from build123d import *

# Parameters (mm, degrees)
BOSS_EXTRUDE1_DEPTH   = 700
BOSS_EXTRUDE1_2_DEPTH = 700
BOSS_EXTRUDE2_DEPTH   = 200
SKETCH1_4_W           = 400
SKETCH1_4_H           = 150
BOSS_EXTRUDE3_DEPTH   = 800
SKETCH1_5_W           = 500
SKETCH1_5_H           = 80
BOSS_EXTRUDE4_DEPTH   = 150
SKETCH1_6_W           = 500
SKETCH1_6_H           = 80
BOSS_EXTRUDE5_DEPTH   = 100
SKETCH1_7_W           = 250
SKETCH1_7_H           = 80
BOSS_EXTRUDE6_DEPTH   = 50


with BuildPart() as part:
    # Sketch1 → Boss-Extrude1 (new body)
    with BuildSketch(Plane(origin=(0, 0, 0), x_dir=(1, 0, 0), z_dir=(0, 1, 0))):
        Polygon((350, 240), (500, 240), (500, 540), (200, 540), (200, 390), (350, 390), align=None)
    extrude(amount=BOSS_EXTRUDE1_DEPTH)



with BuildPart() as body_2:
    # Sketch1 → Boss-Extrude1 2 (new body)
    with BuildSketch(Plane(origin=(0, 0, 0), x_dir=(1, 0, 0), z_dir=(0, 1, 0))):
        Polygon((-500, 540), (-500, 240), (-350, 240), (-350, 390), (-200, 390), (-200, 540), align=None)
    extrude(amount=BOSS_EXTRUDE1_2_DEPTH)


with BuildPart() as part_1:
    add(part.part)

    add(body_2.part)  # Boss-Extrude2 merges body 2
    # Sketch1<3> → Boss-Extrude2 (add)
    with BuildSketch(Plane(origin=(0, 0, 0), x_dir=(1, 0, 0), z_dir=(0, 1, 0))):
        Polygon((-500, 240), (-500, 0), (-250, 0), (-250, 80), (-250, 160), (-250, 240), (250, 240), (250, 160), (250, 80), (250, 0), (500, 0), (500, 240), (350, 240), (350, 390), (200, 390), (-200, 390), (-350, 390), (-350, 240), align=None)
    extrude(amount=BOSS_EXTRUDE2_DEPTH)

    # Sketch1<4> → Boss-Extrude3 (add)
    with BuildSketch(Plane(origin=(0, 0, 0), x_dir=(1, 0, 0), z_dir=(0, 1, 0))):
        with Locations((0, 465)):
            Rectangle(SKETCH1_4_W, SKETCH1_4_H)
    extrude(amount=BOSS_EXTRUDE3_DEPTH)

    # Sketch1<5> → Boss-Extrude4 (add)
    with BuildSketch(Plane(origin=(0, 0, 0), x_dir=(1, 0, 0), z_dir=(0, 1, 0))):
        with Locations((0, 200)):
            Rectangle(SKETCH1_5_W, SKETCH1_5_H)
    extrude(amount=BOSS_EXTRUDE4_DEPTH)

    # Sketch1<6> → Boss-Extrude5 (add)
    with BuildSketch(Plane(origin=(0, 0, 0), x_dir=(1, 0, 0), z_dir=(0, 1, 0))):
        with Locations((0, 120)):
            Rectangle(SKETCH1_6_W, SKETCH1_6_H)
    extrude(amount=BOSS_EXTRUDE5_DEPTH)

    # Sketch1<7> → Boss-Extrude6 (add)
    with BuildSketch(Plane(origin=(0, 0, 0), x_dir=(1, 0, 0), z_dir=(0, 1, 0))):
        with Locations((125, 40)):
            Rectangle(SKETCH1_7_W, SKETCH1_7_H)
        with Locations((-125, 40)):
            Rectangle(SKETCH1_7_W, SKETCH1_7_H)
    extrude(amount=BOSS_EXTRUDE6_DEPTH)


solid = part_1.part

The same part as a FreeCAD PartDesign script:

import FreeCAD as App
import Part
import Sketcher
from FreeCAD import Vector

doc = App.newDocument("Part")
body = doc.addObject("PartDesign::Body", "Body")

# Sketch on XZ plane
sketch1 = body.newObject("Sketcher::SketchObject", "Sketch")
sketch1.AttachmentSupport = (doc.getObject("XZ_Plane"), [""])
sketch1.MapMode = "FlatFace"
sketch1.addGeometry([
    Part.LineSegment(Vector(350, -240, 0), Vector(500, -240, 0)),  # 0
    Part.LineSegment(Vector(500, -240, 0), Vector(500, -540, 0)),  # 1
    Part.LineSegment(Vector(500, -540, 0), Vector(200, -540, 0)),  # 2
    Part.LineSegment(Vector(200, -540, 0), Vector(200, -390, 0)),  # 3
    Part.LineSegment(Vector(200, -390, 0), Vector(350, -390, 0)),  # 4
    Part.LineSegment(Vector(350, -390, 0), Vector(350, -240, 0)),  # 5
], False)
sketch1.addConstraint([
    Sketcher.Constraint("Coincident", 0, 2, 1, 1),
    Sketcher.Constraint("Coincident", 1, 2, 2, 1),
    Sketcher.Constraint("Coincident", 2, 2, 3, 1),
    Sketcher.Constraint("Coincident", 3, 2, 4, 1),
    Sketcher.Constraint("Coincident", 4, 2, 5, 1),
    Sketcher.Constraint("Coincident", 5, 2, 0, 1),
    Sketcher.Constraint("Horizontal", 0),
    Sketcher.Constraint("Vertical", 1),
    Sketcher.Constraint("Horizontal", 2),
    Sketcher.Constraint("Vertical", 3),
    Sketcher.Constraint("Horizontal", 4),
    Sketcher.Constraint("Vertical", 5),
    Sketcher.Constraint("Equal", 0, 4),
    Sketcher.Constraint("Equal", 2, 1),
    Sketcher.Constraint("Equal", 4, 3),
    Sketcher.Constraint("DistanceX", 0, 1, 0, 2, 150.0),
    Sketcher.Constraint("DistanceX", -1, 1, 0, 2, 500.0),
    Sketcher.Constraint("DistanceY", 0, 2, -1, 1, 240.0),
])
pad1 = body.newObject("PartDesign::Pad", "Pad")
pad1.Profile = sketch1
pad1.Length = 700
pad1.Reversed = True
body2 = doc.addObject("PartDesign::Body", "Body001")

# Sketch on XZ plane
sketch2 = body2.newObject("Sketcher::SketchObject", "Sketch001")
sketch2.AttachmentSupport = (doc.getObject("XZ_Plane001"), [""])
sketch2.MapMode = "FlatFace"
sketch2.addGeometry([
    Part.LineSegment(Vector(-500, -540, 0), Vector(-500, -240, 0)),  # 0
    Part.LineSegment(Vector(-500, -240, 0), Vector(-350, -240, 0)),  # 1
    Part.LineSegment(Vector(-350, -240, 0), Vector(-350, -390, 0)),  # 2
    Part.LineSegment(Vector(-350, -390, 0), Vector(-200, -390, 0)),  # 3
    Part.LineSegment(Vector(-200, -390, 0), Vector(-200, -540, 0)),  # 4
    Part.LineSegment(Vector(-200, -540, 0), Vector(-500, -540, 0)),  # 5
], False)
sketch2.addConstraint([
    Sketcher.Constraint("Coincident", 0, 2, 1, 1),
    Sketcher.Constraint("Coincident", 1, 2, 2, 1),
    Sketcher.Constraint("Coincident", 2, 2, 3, 1),
    Sketcher.Constraint("Coincident", 3, 2, 4, 1),
    Sketcher.Constraint("Coincident", 4, 2, 5, 1),
    Sketcher.Constraint("Coincident", 5, 2, 0, 1),
    Sketcher.Constraint("Vertical", 0),
    Sketcher.Constraint("Horizontal", 1),
    Sketcher.Constraint("Vertical", 2),
    Sketcher.Constraint("Horizontal", 3),
    Sketcher.Constraint("Vertical", 4),
    Sketcher.Constraint("Horizontal", 5),
    Sketcher.Constraint("Equal", 1, 3),
    Sketcher.Constraint("Equal", 5, 0),
    Sketcher.Constraint("Equal", 3, 2),
    Sketcher.Constraint("DistanceX", 1, 1, 1, 2, 150.0),
    Sketcher.Constraint("DistanceX", 0, 2, -1, 1, 500.0),
    Sketcher.Constraint("DistanceY", 0, 2, -1, 1, 240.0),
])
pad2 = body2.newObject("PartDesign::Pad", "Pad001")
pad2.Profile = sketch2
pad2.Length = 700
pad2.Reversed = True
body.AllowCompound = True
doc.recompute()

boolean = body.newObject("PartDesign::Boolean", "Boolean")
boolean.Type = "Fuse"
boolean.addObjects([body2])

# Sketch on XZ plane
sketch3 = body.newObject("Sketcher::SketchObject", "Sketch002")
sketch3.AttachmentSupport = (doc.getObject("XZ_Plane"), [""])
sketch3.MapMode = "FlatFace"
sketch3.addGeometry([
    Part.LineSegment(Vector(-500, -240, 0), Vector(-500, 0, 0)),  # 0
    Part.LineSegment(Vector(-500, 0, 0), Vector(-250, 0, 0)),  # 1
    Part.LineSegment(Vector(-250, 0, 0), Vector(-250, -240, 0)),  # 2
    Part.LineSegment(Vector(-250, -240, 0), Vector(250, -240, 0)),  # 3
    Part.LineSegment(Vector(250, -240, 0), Vector(250, 0, 0)),  # 4
    Part.LineSegment(Vector(250, 0, 0), Vector(500, 0, 0)),  # 5
    Part.LineSegment(Vector(500, 0, 0), Vector(500, -240, 0)),  # 6
    Part.LineSegment(Vector(500, -240, 0), Vector(350, -240, 0)),  # 7
    Part.LineSegment(Vector(350, -240, 0), Vector(350, -390, 0)),  # 8
    Part.LineSegment(Vector(350, -390, 0), Vector(-350, -390, 0)),  # 9
    Part.LineSegment(Vector(-350, -390, 0), Vector(-350, -240, 0)),  # 10
    Part.LineSegment(Vector(-350, -240, 0), Vector(-500, -240, 0)),  # 11
], False)
sketch3.addConstraint([
    Sketcher.Constraint("Coincident", 0, 2, 1, 1),
    Sketcher.Constraint("Coincident", 1, 2, 2, 1),
    Sketcher.Constraint("Coincident", 2, 2, 3, 1),
    Sketcher.Constraint("Coincident", 3, 2, 4, 1),
    Sketcher.Constraint("Coincident", 4, 2, 5, 1),
    Sketcher.Constraint("Coincident", 5, 2, 6, 1),
    Sketcher.Constraint("Coincident", 6, 2, 7, 1),
    Sketcher.Constraint("Coincident", 7, 2, 8, 1),
    Sketcher.Constraint("Coincident", 8, 2, 9, 1),
    Sketcher.Constraint("Coincident", 9, 2, 10, 1),
    Sketcher.Constraint("Coincident", 10, 2, 11, 1),
    Sketcher.Constraint("Coincident", 11, 2, 0, 1),
    Sketcher.Constraint("Vertical", 0),
    Sketcher.Constraint("Horizontal", 1),
    Sketcher.Constraint("Vertical", 2),
    Sketcher.Constraint("Horizontal", 3),
    Sketcher.Constraint("Vertical", 4),
    Sketcher.Constraint("Horizontal", 5),
    Sketcher.Constraint("Vertical", 6),
    Sketcher.Constraint("Horizontal", 7),
    Sketcher.Constraint("Vertical", 8),
    Sketcher.Constraint("Horizontal", 9),
    Sketcher.Constraint("Vertical", 10),
    Sketcher.Constraint("Horizontal", 11),
    Sketcher.Constraint("Symmetric", 1, 2, 4, 2, -1, 1),
    Sketcher.Constraint("Symmetric", 0, 2, 5, 2, -2),
    Sketcher.Constraint("Symmetric", 7, 2, 10, 2, -2),
    Sketcher.Constraint("Horizontal", 3, 2, 6, 2),
    Sketcher.Constraint("Equal", 11, 8),
    Sketcher.Constraint("DistanceX", 1, 1, 1, 2, 250.0),
    Sketcher.Constraint("DistanceX", 3, 1, 3, 2, 500.0),
    Sketcher.Constraint("DistanceX", 7, 2, 7, 1, 150.0),
    Sketcher.Constraint("DistanceY", 0, 1, 0, 2, 240.0),
])
pad3 = body.newObject("PartDesign::Pad", "Pad002")
pad3.Profile = sketch3
pad3.Length = 200
pad3.Reversed = True

# Sketch on XZ plane
sketch4 = body.newObject("Sketcher::SketchObject", "Sketch003")
sketch4.AttachmentSupport = (doc.getObject("XZ_Plane"), [""])
sketch4.MapMode = "FlatFace"
sketch4.addGeometry([
    Part.LineSegment(Vector(-200, -540, 0), Vector(-200, -390, 0)),
    Part.LineSegment(Vector(-200, -390, 0), Vector(200, -390, 0)),
    Part.LineSegment(Vector(200, -390, 0), Vector(200, -540, 0)),
    Part.LineSegment(Vector(200, -540, 0), Vector(-200, -540, 0)),
], False)
sketch4.addConstraint([
    Sketcher.Constraint("Coincident", 0, 2, 1, 1),
    Sketcher.Constraint("Coincident", 1, 2, 2, 1),
    Sketcher.Constraint("Coincident", 2, 2, 3, 1),
    Sketcher.Constraint("Coincident", 3, 2, 0, 1),
    Sketcher.Constraint("Vertical", 0),
    Sketcher.Constraint("Horizontal", 1),
    Sketcher.Constraint("Vertical", 2),
    Sketcher.Constraint("Horizontal", 3),
    Sketcher.Constraint("DistanceX", 1, 1, 1, 2, 400.0),
    Sketcher.Constraint("DistanceY", 0, 1, 0, 2, 150.0),
    Sketcher.Constraint("DistanceX", 0, 2, -1, 1, 200.0),
    Sketcher.Constraint("DistanceY", 0, 2, -1, 1, 390.0),
])
pad4 = body.newObject("PartDesign::Pad", "Pad003")
pad4.Profile = sketch4
pad4.Length = 800
pad4.Reversed = True

# Sketch on XZ plane
sketch5 = body.newObject("Sketcher::SketchObject", "Sketch004")
sketch5.AttachmentSupport = (doc.getObject("XZ_Plane"), [""])
sketch5.MapMode = "FlatFace"
sketch5.addGeometry([
    Part.LineSegment(Vector(-250, -240, 0), Vector(-250, -160, 0)),
    Part.LineSegment(Vector(-250, -160, 0), Vector(250, -160, 0)),
    Part.LineSegment(Vector(250, -160, 0), Vector(250, -240, 0)),
    Part.LineSegment(Vector(250, -240, 0), Vector(-250, -240, 0)),
], False)
sketch5.addConstraint([
    Sketcher.Constraint("Coincident", 0, 2, 1, 1),
    Sketcher.Constraint("Coincident", 1, 2, 2, 1),
    Sketcher.Constraint("Coincident", 2, 2, 3, 1),
    Sketcher.Constraint("Coincident", 3, 2, 0, 1),
    Sketcher.Constraint("Vertical", 0),
    Sketcher.Constraint("Horizontal", 1),
    Sketcher.Constraint("Vertical", 2),
    Sketcher.Constraint("Horizontal", 3),
    Sketcher.Constraint("DistanceX", 1, 1, 1, 2, 500.0),
    Sketcher.Constraint("DistanceY", 0, 1, 0, 2, 80.0),
    Sketcher.Constraint("DistanceX", 0, 2, -1, 1, 250.0),
    Sketcher.Constraint("DistanceY", 0, 2, -1, 1, 160.0),
])
pad5 = body.newObject("PartDesign::Pad", "Pad004")
pad5.Profile = sketch5
pad5.Length = 150
pad5.Reversed = True

# Sketch on XZ plane
sketch6 = body.newObject("Sketcher::SketchObject", "Sketch005")
sketch6.AttachmentSupport = (doc.getObject("XZ_Plane"), [""])
sketch6.MapMode = "FlatFace"
sketch6.addGeometry([
    Part.LineSegment(Vector(-250, -160, 0), Vector(-250, -80, 0)),
    Part.LineSegment(Vector(-250, -80, 0), Vector(250, -80, 0)),
    Part.LineSegment(Vector(250, -80, 0), Vector(250, -160, 0)),
    Part.LineSegment(Vector(250, -160, 0), Vector(-250, -160, 0)),
], False)
sketch6.addConstraint([
    Sketcher.Constraint("Coincident", 0, 2, 1, 1),
    Sketcher.Constraint("Coincident", 1, 2, 2, 1),
    Sketcher.Constraint("Coincident", 2, 2, 3, 1),
    Sketcher.Constraint("Coincident", 3, 2, 0, 1),
    Sketcher.Constraint("Vertical", 0),
    Sketcher.Constraint("Horizontal", 1),
    Sketcher.Constraint("Vertical", 2),
    Sketcher.Constraint("Horizontal", 3),
    Sketcher.Constraint("DistanceX", 1, 1, 1, 2, 500.0),
    Sketcher.Constraint("DistanceY", 0, 1, 0, 2, 80.0),
    Sketcher.Constraint("DistanceX", 0, 2, -1, 1, 250.0),
    Sketcher.Constraint("DistanceY", 0, 2, -1, 1, 80.0),
])
pad6 = body.newObject("PartDesign::Pad", "Pad005")
pad6.Profile = sketch6
pad6.Length = 100
pad6.Reversed = True

# Sketch on XZ plane
sketch7 = body.newObject("Sketcher::SketchObject", "Sketch006")
sketch7.AttachmentSupport = (doc.getObject("XZ_Plane"), [""])
sketch7.MapMode = "FlatFace"
sketch7.addGeometry([
    Part.LineSegment(Vector(250, 0, 0), Vector(250, -80, 0)),
    Part.LineSegment(Vector(250, -80, 0), Vector(-250, -80, 0)),
    Part.LineSegment(Vector(-250, -80, 0), Vector(-250, 0, 0)),
    Part.LineSegment(Vector(-250, 0, 0), Vector(250, 0, 0)),
], False)
sketch7.addConstraint([
    Sketcher.Constraint("Coincident", 0, 2, 1, 1),
    Sketcher.Constraint("Coincident", 1, 2, 2, 1),
    Sketcher.Constraint("Coincident", 2, 2, 3, 1),
    Sketcher.Constraint("Coincident", 3, 2, 0, 1),
    Sketcher.Constraint("Vertical", 0),
    Sketcher.Constraint("Horizontal", 1),
    Sketcher.Constraint("Vertical", 2),
    Sketcher.Constraint("Horizontal", 3),
    Sketcher.Constraint("Symmetric", 2, 2, 3, 2, -1, 1),
    Sketcher.Constraint("DistanceX", 1, 2, 1, 1, 500.0),
    Sketcher.Constraint("DistanceY", 0, 2, 0, 1, 80.0),
])
pad7 = body.newObject("PartDesign::Pad", "Pad006")
pad7.Profile = sketch7
pad7.Length = 50
pad7.Reversed = True

doc.recompute()
